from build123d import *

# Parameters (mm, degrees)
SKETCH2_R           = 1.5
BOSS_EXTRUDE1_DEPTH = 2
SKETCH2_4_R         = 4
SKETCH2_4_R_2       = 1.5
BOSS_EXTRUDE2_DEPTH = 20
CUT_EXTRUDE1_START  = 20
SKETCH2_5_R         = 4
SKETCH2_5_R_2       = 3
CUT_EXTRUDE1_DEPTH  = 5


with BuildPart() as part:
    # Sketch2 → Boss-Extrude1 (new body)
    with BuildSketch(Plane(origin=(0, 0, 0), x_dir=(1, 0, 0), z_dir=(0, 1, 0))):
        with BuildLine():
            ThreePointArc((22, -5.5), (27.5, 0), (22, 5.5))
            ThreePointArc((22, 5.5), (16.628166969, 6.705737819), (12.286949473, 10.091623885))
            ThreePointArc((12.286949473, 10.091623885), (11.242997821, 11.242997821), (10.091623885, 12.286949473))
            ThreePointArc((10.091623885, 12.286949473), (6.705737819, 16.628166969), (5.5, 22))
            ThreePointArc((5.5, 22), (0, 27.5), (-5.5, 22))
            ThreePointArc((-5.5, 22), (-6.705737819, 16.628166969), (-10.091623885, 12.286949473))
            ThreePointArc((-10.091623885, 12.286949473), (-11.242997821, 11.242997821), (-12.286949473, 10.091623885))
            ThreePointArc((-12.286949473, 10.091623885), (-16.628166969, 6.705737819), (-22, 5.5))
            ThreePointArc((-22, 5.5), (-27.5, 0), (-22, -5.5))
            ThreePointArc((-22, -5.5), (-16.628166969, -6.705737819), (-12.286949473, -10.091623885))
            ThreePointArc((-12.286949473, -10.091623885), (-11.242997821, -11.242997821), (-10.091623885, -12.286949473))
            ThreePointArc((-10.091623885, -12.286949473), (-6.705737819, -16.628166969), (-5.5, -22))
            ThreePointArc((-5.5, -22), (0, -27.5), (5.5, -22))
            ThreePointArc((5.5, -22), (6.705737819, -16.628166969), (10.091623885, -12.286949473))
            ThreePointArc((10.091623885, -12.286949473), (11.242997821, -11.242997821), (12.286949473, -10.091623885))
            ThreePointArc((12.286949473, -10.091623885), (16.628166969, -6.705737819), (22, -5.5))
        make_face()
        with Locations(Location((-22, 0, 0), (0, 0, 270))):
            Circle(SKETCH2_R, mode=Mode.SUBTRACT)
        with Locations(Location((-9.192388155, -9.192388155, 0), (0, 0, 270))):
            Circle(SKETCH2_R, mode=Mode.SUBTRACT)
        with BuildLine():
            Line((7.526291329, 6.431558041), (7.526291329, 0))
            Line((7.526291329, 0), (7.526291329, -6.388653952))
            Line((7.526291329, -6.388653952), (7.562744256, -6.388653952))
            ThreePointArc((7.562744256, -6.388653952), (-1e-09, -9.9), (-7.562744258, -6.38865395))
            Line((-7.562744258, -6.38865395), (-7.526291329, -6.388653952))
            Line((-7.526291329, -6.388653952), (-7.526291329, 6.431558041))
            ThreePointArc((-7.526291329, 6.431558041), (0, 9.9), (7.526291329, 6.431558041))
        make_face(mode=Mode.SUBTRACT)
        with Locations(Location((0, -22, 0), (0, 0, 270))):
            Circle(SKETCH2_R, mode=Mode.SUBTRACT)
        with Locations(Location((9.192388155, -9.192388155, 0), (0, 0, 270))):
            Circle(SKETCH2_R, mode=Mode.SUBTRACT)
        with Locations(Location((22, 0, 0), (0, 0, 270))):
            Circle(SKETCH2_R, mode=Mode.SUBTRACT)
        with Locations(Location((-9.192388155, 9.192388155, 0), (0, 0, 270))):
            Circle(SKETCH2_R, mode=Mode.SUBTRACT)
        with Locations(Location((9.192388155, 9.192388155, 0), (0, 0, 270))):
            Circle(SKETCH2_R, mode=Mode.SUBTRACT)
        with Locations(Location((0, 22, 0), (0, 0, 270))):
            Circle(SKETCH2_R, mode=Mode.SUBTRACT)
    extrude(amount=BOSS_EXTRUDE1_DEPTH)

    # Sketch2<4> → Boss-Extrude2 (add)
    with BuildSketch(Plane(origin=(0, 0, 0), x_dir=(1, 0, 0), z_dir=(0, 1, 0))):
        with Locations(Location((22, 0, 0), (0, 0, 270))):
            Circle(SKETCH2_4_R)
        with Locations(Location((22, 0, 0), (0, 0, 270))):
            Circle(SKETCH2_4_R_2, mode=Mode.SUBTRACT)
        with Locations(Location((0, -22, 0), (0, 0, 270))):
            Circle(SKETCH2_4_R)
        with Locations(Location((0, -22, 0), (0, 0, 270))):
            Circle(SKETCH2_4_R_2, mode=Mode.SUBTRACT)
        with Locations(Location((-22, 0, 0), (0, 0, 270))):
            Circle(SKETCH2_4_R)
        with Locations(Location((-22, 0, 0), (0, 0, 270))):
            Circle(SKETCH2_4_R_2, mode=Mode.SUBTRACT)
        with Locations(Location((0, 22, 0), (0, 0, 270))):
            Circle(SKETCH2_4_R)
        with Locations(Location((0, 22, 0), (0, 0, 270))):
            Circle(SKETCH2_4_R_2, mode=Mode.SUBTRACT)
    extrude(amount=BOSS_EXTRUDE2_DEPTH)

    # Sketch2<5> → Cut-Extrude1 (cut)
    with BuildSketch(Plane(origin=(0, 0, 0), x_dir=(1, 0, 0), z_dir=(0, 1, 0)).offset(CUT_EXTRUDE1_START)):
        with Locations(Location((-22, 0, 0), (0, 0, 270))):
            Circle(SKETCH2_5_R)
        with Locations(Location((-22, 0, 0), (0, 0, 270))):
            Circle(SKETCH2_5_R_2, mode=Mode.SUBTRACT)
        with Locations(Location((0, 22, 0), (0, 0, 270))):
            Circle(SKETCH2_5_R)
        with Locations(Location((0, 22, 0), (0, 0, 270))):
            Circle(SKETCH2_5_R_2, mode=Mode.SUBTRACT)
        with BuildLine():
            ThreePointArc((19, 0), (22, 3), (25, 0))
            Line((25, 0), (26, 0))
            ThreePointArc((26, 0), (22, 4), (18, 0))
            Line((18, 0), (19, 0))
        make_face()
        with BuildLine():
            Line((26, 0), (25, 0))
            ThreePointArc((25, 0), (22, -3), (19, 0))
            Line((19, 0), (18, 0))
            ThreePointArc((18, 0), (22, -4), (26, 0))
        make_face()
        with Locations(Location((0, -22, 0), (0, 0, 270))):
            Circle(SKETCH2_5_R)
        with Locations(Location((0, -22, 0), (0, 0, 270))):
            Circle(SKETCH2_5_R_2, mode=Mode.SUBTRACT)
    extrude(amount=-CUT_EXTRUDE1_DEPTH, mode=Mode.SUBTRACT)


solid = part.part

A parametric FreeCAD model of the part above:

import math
import FreeCAD as App
import Part
import Sketcher

doc = App.newDocument("Part")
body = doc.addObject("PartDesign::Body", "Body")

sketch1 = body.newObject("Sketcher::SketchObject", "Sketch")
sketch1.AttachmentSupport = (doc.getObject("XZ_Plane"), [""])
sketch1.MapMode = "FlatFace"
sketch1.addGeometry([
    Part.ArcOfCircle(Part.Circle(App.Vector(22, 0, 0), App.Vector(0, 0, 1), 5.5), math.radians(-90), math.radians(90)),
    Part.ArcOfCircle(Part.Circle(App.Vector(22, -18.069231, 0), App.Vector(0, 0, 1), 12.569231), math.radians(90), math.radians(140.602757)),
    Part.ArcOfCircle(Part.Circle(App.Vector(0, 0, 0), App.Vector(0, 0, 1), 15.9), math.radians(-50.602757), math.radians(-39.397243)),
    Part.ArcOfCircle(Part.Circle(App.Vector(18.069231, -22, 0), App.Vector(0, 0, 1), 12.569231), math.radians(129.397243), math.radians(180)),
    Part.ArcOfCircle(Part.Circle(App.Vector(0, -22, 0), App.Vector(0, 0, 1), 5.5), math.radians(180), math.radians(360)),
    Part.ArcOfCircle(Part.Circle(App.Vector(-18.069231, -22, 0), App.Vector(0, 0, 1), 12.569231), math.radians(0), math.radians(50.602757)),
    Part.ArcOfCircle(Part.Circle(App.Vector(0, 0, 0), App.Vector(0, 0, 1), 15.9), math.radians(-140.602757), math.radians(-129.397243)),
    Part.ArcOfCircle(Part.Circle(App.Vector(-22, -18.069231, 0), App.Vector(0, 0, 1), 12.569231), math.radians(39.397243), math.radians(90)),
    Part.ArcOfCircle(Part.Circle(App.Vector(-22, 0, 0), App.Vector(0, 0, 1), 5.5), math.radians(90), math.radians(270)),
    Part.ArcOfCircle(Part.Circle(App.Vector(-22, 18.069231, 0), App.Vector(0, 0, 1), 12.569231), math.radians(-90), math.radians(-39.397243)),
    Part.ArcOfCircle(Part.Circle(App.Vector(0, 0, 0), App.Vector(0, 0, 1), 15.9), math.radians(129.397243), math.radians(140.602757)),
    Part.ArcOfCircle(Part.Circle(App.Vector(-18.069231, 22, 0), App.Vector(0, 0, 1), 12.569231), math.radians(-50.602757), math.radians(0)),
    Part.ArcOfCircle(Part.Circle(App.Vector(0, 22, 0), App.Vector(0, 0, 1), 5.5), math.radians(0), math.radians(180)),
    Part.ArcOfCircle(Part.Circle(App.Vector(18.069231, 22, 0), App.Vector(0, 0, 1), 12.569231), math.radians(180), math.radians(230.602757)),
    Part.ArcOfCircle(Part.Circle(App.Vector(0, 0, 0), App.Vector(0, 0, 1), 15.9), math.radians(39.397243), math.radians(50.602757)),
    Part.ArcOfCircle(Part.Circle(App.Vector(22, 18.069231, 0), App.Vector(0, 0, 1), 12.569231), math.radians(-140.602757), math.radians(-90)),
    Part.Circle(App.Vector(-9.192388, 9.192388, 0), App.Vector(0, 0, 1), 1.5),
    Part.Circle(App.Vector(0, 22, 0), App.Vector(0, 0, 1), 1.5),
    Part.Circle(App.Vector(9.192388, 9.192388, 0), App.Vector(0, 0, 1), 1.5),
    Part.Circle(App.Vector(-22, 0, 0), App.Vector(0, 0, 1), 1.5),
    Part.ArcOfCircle(Part.Circle(App.Vector(0, 0, 0), App.Vector(0, 0, 1), 9.9), math.radians(-139.484606), math.radians(-40.515394)),
    Part.LineSegment(App.Vector(7.526291, -6.431558, 0), App.Vector(7.526291, 6.388654, 0)),
    Part.LineSegment(App.Vector(7.526291, 6.388654, 0), App.Vector(7.562744, 6.388654, 0)),
    Part.ArcOfCircle(Part.Circle(App.Vector(0, 0, 0), App.Vector(0, 0, 1), 9.9), math.radians(40.189566), math.radians(139.810434)),
    Part.LineSegment(App.Vector(-7.562744, 6.388654, 0), App.Vector(-7.526291, 6.388654, 0)),
    Part.LineSegment(App.Vector(-7.526291, 6.388654, 0), App.Vector(-7.526291, -6.431558, 0)),
    Part.Circle(App.Vector(-9.192388, -9.192388, 0), App.Vector(0, 0, 1), 1.5),
    Part.Circle(App.Vector(9.192388, -9.192388, 0), App.Vector(0, 0, 1), 1.5),
    Part.Circle(App.Vector(22, 0, 0), App.Vector(0, 0, 1), 1.5),
    Part.Circle(App.Vector(0, -22, 0), App.Vector(0, 0, 1), 1.5),
], False)
sketch1.addConstraint([
    Sketcher.Constraint("Tangent", 0, 1, 1, 1),
    Sketcher.Constraint("Tangent", 1, 2, 2, 2),
    Sketcher.Constraint("Tangent", 2, 1, 3, 1),
    Sketcher.Constraint("Tangent", 3, 2, 4, 2),
    Sketcher.Constraint("Tangent", 4, 1, 5, 1),
    Sketcher.Constraint("Tangent", 5, 2, 6, 2),
    Sketcher.Constraint("Tangent", 6, 1, 7, 1),
    Sketcher.Constraint("Tangent", 7, 2, 8, 2),
    Sketcher.Constraint("Tangent", 8, 1, 9, 1),
    Sketcher.Constraint("Tangent", 9, 2, 10, 2),
    Sketcher.Constraint("Tangent", 10, 1, 11, 1),
    Sketcher.Constraint("Tangent", 11, 2, 12, 2),
    Sketcher.Constraint("Tangent", 12, 1, 13, 1),
    Sketcher.Constraint("Tangent", 13, 2, 14, 2),
    Sketcher.Constraint("Tangent", 14, 1, 15, 1),
    Sketcher.Constraint("Tangent", 15, 2, 0, 2),
    Sketcher.Constraint("Coincident", 20, 2, 21, 1),
    Sketcher.Constraint("Coincident", 21, 2, 22, 1),
    Sketcher.Constraint("Coincident", 22, 2, 23, 1),
    Sketcher.Constraint("Coincident", 23, 2, 24, 1),
    Sketcher.Constraint("Coincident", 24, 2, 25, 1),
    Sketcher.Constraint("Coincident", 25, 2, 20, 1),
    Sketcher.Constraint("Vertical", 21),
    Sketcher.Constraint("Horizontal", 22),
    Sketcher.Constraint("Horizontal", 24),
    Sketcher.Constraint("Vertical", 25),
    Sketcher.Constraint("Coincident", 2, 3, -1, 1),
    Sketcher.Constraint("Coincident", 6, 3, -1, 1),
    Sketcher.Constraint("Coincident", 10, 3, -1, 1),
    Sketcher.Constraint("Coincident", 14, 3, -1, 1),
    Sketcher.Constraint("Coincident", 20, 3, -1, 1),
    Sketcher.Constraint("Coincident", 23, 3, -1, 1),
    Sketcher.Constraint("Coincident", 17, 3, 12, 3),
    Sketcher.Constraint("Coincident", 19, 3, 8, 3),
    Sketcher.Constraint("Coincident", 28, 3, 0, 3),
    Sketcher.Constraint("Coincident", 29, 3, 4, 3),
    Sketcher.Constraint("Equal", 1, 3),
    Sketcher.Constraint("Equal", 0, 4),
    Sketcher.Constraint("Equal", 3, 5),
    Sketcher.Constraint("Equal", 2, 6),
    Sketcher.Constraint("Equal", 5, 7),
    Sketcher.Constraint("Equal", 4, 8),
    Sketcher.Constraint("Equal", 7, 9),
    Sketcher.Constraint("Equal", 6, 10),
    Sketcher.Constraint("Equal", 9, 11),
    Sketcher.Constraint("Equal", 8, 12),
    Sketcher.Constraint("Equal", 11, 13),
    Sketcher.Constraint("Equal", 10, 14),
    Sketcher.Constraint("Equal", 13, 15),
    Sketcher.Constraint("Equal", 16, 17),
    Sketcher.Constraint("Equal", 17, 18),
    Sketcher.Constraint("Equal", 18, 19),
    Sketcher.Constraint("Equal", 20, 23),
    Sketcher.Constraint("Equal", 19, 26),
    Sketcher.Constraint("Equal", 26, 27),
    Sketcher.Constraint("Equal", 27, 28),
    Sketcher.Constraint("Equal", 28, 29),
    Sketcher.Constraint("Symmetric", 0, 3, 8, 3, -1, 1),
    Sketcher.Constraint("Symmetric", 4, 3, 12, 3, -1, 1),
    Sketcher.Constraint("Symmetric", 18, 3, 26, 3, -1, 1),
    Sketcher.Constraint("Symmetric", 16, 3, 27, 3, -1, 1),
    Sketcher.Constraint("Symmetric", 16, 3, 18, 3, -2),
    Sketcher.Constraint("Symmetric", 21, 2, 24, 2, -2),
    Sketcher.Constraint("PointOnObject", 0, 3, -1),
    Sketcher.Constraint("PointOnObject", 4, 3, -2),
    Sketcher.Constraint("Horizontal", 3, 3, 4, 3),
    Sketcher.Constraint("Vertical", 0, 3, 1, 3),
    Sketcher.Constraint("Diameter", 16, 3.0),
    Sketcher.Constraint("Radius", 0, 5.5),
    Sketcher.Constraint("Radius", 2, 15.9),
    Sketcher.Constraint("Radius", 20, 9.9),
    Sketcher.Constraint("DistanceX", -1, 1, 0, 3, 22.0),
    Sketcher.Constraint("DistanceY", 21, 1, 21, 2, 12.820212),
    Sketcher.Constraint("DistanceX", 22, 1, 22, 2, 0.036453),
    Sketcher.Constraint("DistanceX", 16, 3, -1, 1, 9.192388),
    Sketcher.Constraint("DistanceY", -1, 1, 16, 3, 9.192388),
])
pad1 = body.newObject("PartDesign::Pad", "Pad")
pad1.Profile = sketch1
pad1.Length = 2
pad1.Reversed = True

sketch2 = body.newObject("Sketcher::SketchObject", "Sketch001")
sketch2.AttachmentSupport = (doc.getObject("XZ_Plane"), [""])
sketch2.MapMode = "FlatFace"
sketch2.addGeometry([
    Part.Circle(App.Vector(22, 0, 0), App.Vector(0, 0, 1), 4),
    Part.Circle(App.Vector(22, 0, 0), App.Vector(0, 0, 1), 1.5),
    Part.Circle(App.Vector(0, 22, 0), App.Vector(0, 0, 1), 4),
    Part.Circle(App.Vector(0, 22, 0), App.Vector(0, 0, 1), 1.5),
    Part.Circle(App.Vector(-22, 0, 0), App.Vector(0, 0, 1), 4),
    Part.Circle(App.Vector(-22, 0, 0), App.Vector(0, 0, 1), 1.5),
    Part.Circle(App.Vector(0, -22, 0), App.Vector(0, 0, 1), 4),
    Part.Circle(App.Vector(0, -22, 0), App.Vector(0, 0, 1), 1.5),
], False)
sketch2.addConstraint([
    Sketcher.Constraint("Coincident", 1, 3, 0, 3),
    Sketcher.Constraint("Coincident", 3, 3, 2, 3),
    Sketcher.Constraint("Coincident", 5, 3, 4, 3),
    Sketcher.Constraint("Coincident", 7, 3, 6, 3),
    Sketcher.Constraint("Equal", 0, 2),
    Sketcher.Constraint("Equal", 1, 3),
    Sketcher.Constraint("Equal", 2, 4),
    Sketcher.Constraint("Equal", 3, 5),
    Sketcher.Constraint("Equal", 4, 6),
    Sketcher.Constraint("Equal", 5, 7),
    Sketcher.Constraint("Symmetric", 0, 3, 4, 3, -1, 1),
    Sketcher.Constraint("Symmetric", 2, 3, 6, 3, -1, 1),
    Sketcher.Constraint("PointOnObject", 0, 3, -1),
    Sketcher.Constraint("PointOnObject", 2, 3, -2),
    Sketcher.Constraint("Diameter", 0, 8.0),
    Sketcher.Constraint("Diameter", 1, 3.0),
    Sketcher.Constraint("DistanceX", -1, 1, 0, 3, 22.0),
    Sketcher.Constraint("DistanceY", -1, 1, 2, 3, 22.0),
])
pad2 = body.newObject("PartDesign::Pad", "Pad001")
pad2.Profile = sketch2
pad2.Length = 20
pad2.Reversed = True

sketch3 = body.newObject("Sketcher::SketchObject", "Sketch002")
sketch3.AttachmentSupport = (doc.getObject("XZ_Plane"), [""])
sketch3.MapMode = "FlatFace"
sketch3.AttachmentOffset = App.Placement(App.Vector(0, 0, -20), App.Rotation())
sketch3.addGeometry([
    Part.Circle(App.Vector(-22, 0, 0), App.Vector(0, 0, 1), 4),
    Part.Circle(App.Vector(-22, 0, 0), App.Vector(0, 0, 1), 3),
    Part.Circle(App.Vector(0, -22, 0), App.Vector(0, 0, 1), 4),
    Part.Circle(App.Vector(0, -22, 0), App.Vector(0, 0, 1), 3),
    Part.Circle(App.Vector(22, 0, 0), App.Vector(0, 0, 1), 4),
    Part.Circle(App.Vector(22, 0, 0), App.Vector(0, 0, 1), 3),
    Part.Circle(App.Vector(0, 22, 0), App.Vector(0, 0, 1), 4),
    Part.Circle(App.Vector(0, 22, 0), App.Vector(0, 0, 1), 3),
], False)
sketch3.addConstraint([
    Sketcher.Constraint("Coincident", 1, 3, 0, 3),
    Sketcher.Constraint("Coincident", 3, 3, 2, 3),
    Sketcher.Constraint("Coincident", 5, 3, 4, 3),
    Sketcher.Constraint("Coincident", 7, 3, 6, 3),
    Sketcher.Constraint("Equal", 0, 2),
    Sketcher.Constraint("Equal", 1, 3),
    Sketcher.Constraint("Equal", 2, 4),
    Sketcher.Constraint("Equal", 3, 5),
    Sketcher.Constraint("Equal", 4, 6),
    Sketcher.Constraint("Equal", 5, 7),
    Sketcher.Constraint("Symmetric", 0, 3, 4, 3, -1, 1),
    Sketcher.Constraint("Symmetric", 2, 3, 6, 3, -1, 1),
    Sketcher.Constraint("PointOnObject", 0, 3, -1),
    Sketcher.Constraint("PointOnObject", 2, 3, -2),
    Sketcher.Constraint("Diameter", 0, 8.0),
    Sketcher.Constraint("Diameter", 1, 6.0),
    Sketcher.Constraint("DistanceX", 0, 3, -1, 1, 22.0),
    Sketcher.Constraint("DistanceY", 2, 3, -1, 1, 22.0),
])
pocket1 = body.newObject("PartDesign::Pocket", "Pocket")
pocket1.Profile = sketch3
pocket1.Length = 5
pocket1.Reversed = True

doc.recompute()
